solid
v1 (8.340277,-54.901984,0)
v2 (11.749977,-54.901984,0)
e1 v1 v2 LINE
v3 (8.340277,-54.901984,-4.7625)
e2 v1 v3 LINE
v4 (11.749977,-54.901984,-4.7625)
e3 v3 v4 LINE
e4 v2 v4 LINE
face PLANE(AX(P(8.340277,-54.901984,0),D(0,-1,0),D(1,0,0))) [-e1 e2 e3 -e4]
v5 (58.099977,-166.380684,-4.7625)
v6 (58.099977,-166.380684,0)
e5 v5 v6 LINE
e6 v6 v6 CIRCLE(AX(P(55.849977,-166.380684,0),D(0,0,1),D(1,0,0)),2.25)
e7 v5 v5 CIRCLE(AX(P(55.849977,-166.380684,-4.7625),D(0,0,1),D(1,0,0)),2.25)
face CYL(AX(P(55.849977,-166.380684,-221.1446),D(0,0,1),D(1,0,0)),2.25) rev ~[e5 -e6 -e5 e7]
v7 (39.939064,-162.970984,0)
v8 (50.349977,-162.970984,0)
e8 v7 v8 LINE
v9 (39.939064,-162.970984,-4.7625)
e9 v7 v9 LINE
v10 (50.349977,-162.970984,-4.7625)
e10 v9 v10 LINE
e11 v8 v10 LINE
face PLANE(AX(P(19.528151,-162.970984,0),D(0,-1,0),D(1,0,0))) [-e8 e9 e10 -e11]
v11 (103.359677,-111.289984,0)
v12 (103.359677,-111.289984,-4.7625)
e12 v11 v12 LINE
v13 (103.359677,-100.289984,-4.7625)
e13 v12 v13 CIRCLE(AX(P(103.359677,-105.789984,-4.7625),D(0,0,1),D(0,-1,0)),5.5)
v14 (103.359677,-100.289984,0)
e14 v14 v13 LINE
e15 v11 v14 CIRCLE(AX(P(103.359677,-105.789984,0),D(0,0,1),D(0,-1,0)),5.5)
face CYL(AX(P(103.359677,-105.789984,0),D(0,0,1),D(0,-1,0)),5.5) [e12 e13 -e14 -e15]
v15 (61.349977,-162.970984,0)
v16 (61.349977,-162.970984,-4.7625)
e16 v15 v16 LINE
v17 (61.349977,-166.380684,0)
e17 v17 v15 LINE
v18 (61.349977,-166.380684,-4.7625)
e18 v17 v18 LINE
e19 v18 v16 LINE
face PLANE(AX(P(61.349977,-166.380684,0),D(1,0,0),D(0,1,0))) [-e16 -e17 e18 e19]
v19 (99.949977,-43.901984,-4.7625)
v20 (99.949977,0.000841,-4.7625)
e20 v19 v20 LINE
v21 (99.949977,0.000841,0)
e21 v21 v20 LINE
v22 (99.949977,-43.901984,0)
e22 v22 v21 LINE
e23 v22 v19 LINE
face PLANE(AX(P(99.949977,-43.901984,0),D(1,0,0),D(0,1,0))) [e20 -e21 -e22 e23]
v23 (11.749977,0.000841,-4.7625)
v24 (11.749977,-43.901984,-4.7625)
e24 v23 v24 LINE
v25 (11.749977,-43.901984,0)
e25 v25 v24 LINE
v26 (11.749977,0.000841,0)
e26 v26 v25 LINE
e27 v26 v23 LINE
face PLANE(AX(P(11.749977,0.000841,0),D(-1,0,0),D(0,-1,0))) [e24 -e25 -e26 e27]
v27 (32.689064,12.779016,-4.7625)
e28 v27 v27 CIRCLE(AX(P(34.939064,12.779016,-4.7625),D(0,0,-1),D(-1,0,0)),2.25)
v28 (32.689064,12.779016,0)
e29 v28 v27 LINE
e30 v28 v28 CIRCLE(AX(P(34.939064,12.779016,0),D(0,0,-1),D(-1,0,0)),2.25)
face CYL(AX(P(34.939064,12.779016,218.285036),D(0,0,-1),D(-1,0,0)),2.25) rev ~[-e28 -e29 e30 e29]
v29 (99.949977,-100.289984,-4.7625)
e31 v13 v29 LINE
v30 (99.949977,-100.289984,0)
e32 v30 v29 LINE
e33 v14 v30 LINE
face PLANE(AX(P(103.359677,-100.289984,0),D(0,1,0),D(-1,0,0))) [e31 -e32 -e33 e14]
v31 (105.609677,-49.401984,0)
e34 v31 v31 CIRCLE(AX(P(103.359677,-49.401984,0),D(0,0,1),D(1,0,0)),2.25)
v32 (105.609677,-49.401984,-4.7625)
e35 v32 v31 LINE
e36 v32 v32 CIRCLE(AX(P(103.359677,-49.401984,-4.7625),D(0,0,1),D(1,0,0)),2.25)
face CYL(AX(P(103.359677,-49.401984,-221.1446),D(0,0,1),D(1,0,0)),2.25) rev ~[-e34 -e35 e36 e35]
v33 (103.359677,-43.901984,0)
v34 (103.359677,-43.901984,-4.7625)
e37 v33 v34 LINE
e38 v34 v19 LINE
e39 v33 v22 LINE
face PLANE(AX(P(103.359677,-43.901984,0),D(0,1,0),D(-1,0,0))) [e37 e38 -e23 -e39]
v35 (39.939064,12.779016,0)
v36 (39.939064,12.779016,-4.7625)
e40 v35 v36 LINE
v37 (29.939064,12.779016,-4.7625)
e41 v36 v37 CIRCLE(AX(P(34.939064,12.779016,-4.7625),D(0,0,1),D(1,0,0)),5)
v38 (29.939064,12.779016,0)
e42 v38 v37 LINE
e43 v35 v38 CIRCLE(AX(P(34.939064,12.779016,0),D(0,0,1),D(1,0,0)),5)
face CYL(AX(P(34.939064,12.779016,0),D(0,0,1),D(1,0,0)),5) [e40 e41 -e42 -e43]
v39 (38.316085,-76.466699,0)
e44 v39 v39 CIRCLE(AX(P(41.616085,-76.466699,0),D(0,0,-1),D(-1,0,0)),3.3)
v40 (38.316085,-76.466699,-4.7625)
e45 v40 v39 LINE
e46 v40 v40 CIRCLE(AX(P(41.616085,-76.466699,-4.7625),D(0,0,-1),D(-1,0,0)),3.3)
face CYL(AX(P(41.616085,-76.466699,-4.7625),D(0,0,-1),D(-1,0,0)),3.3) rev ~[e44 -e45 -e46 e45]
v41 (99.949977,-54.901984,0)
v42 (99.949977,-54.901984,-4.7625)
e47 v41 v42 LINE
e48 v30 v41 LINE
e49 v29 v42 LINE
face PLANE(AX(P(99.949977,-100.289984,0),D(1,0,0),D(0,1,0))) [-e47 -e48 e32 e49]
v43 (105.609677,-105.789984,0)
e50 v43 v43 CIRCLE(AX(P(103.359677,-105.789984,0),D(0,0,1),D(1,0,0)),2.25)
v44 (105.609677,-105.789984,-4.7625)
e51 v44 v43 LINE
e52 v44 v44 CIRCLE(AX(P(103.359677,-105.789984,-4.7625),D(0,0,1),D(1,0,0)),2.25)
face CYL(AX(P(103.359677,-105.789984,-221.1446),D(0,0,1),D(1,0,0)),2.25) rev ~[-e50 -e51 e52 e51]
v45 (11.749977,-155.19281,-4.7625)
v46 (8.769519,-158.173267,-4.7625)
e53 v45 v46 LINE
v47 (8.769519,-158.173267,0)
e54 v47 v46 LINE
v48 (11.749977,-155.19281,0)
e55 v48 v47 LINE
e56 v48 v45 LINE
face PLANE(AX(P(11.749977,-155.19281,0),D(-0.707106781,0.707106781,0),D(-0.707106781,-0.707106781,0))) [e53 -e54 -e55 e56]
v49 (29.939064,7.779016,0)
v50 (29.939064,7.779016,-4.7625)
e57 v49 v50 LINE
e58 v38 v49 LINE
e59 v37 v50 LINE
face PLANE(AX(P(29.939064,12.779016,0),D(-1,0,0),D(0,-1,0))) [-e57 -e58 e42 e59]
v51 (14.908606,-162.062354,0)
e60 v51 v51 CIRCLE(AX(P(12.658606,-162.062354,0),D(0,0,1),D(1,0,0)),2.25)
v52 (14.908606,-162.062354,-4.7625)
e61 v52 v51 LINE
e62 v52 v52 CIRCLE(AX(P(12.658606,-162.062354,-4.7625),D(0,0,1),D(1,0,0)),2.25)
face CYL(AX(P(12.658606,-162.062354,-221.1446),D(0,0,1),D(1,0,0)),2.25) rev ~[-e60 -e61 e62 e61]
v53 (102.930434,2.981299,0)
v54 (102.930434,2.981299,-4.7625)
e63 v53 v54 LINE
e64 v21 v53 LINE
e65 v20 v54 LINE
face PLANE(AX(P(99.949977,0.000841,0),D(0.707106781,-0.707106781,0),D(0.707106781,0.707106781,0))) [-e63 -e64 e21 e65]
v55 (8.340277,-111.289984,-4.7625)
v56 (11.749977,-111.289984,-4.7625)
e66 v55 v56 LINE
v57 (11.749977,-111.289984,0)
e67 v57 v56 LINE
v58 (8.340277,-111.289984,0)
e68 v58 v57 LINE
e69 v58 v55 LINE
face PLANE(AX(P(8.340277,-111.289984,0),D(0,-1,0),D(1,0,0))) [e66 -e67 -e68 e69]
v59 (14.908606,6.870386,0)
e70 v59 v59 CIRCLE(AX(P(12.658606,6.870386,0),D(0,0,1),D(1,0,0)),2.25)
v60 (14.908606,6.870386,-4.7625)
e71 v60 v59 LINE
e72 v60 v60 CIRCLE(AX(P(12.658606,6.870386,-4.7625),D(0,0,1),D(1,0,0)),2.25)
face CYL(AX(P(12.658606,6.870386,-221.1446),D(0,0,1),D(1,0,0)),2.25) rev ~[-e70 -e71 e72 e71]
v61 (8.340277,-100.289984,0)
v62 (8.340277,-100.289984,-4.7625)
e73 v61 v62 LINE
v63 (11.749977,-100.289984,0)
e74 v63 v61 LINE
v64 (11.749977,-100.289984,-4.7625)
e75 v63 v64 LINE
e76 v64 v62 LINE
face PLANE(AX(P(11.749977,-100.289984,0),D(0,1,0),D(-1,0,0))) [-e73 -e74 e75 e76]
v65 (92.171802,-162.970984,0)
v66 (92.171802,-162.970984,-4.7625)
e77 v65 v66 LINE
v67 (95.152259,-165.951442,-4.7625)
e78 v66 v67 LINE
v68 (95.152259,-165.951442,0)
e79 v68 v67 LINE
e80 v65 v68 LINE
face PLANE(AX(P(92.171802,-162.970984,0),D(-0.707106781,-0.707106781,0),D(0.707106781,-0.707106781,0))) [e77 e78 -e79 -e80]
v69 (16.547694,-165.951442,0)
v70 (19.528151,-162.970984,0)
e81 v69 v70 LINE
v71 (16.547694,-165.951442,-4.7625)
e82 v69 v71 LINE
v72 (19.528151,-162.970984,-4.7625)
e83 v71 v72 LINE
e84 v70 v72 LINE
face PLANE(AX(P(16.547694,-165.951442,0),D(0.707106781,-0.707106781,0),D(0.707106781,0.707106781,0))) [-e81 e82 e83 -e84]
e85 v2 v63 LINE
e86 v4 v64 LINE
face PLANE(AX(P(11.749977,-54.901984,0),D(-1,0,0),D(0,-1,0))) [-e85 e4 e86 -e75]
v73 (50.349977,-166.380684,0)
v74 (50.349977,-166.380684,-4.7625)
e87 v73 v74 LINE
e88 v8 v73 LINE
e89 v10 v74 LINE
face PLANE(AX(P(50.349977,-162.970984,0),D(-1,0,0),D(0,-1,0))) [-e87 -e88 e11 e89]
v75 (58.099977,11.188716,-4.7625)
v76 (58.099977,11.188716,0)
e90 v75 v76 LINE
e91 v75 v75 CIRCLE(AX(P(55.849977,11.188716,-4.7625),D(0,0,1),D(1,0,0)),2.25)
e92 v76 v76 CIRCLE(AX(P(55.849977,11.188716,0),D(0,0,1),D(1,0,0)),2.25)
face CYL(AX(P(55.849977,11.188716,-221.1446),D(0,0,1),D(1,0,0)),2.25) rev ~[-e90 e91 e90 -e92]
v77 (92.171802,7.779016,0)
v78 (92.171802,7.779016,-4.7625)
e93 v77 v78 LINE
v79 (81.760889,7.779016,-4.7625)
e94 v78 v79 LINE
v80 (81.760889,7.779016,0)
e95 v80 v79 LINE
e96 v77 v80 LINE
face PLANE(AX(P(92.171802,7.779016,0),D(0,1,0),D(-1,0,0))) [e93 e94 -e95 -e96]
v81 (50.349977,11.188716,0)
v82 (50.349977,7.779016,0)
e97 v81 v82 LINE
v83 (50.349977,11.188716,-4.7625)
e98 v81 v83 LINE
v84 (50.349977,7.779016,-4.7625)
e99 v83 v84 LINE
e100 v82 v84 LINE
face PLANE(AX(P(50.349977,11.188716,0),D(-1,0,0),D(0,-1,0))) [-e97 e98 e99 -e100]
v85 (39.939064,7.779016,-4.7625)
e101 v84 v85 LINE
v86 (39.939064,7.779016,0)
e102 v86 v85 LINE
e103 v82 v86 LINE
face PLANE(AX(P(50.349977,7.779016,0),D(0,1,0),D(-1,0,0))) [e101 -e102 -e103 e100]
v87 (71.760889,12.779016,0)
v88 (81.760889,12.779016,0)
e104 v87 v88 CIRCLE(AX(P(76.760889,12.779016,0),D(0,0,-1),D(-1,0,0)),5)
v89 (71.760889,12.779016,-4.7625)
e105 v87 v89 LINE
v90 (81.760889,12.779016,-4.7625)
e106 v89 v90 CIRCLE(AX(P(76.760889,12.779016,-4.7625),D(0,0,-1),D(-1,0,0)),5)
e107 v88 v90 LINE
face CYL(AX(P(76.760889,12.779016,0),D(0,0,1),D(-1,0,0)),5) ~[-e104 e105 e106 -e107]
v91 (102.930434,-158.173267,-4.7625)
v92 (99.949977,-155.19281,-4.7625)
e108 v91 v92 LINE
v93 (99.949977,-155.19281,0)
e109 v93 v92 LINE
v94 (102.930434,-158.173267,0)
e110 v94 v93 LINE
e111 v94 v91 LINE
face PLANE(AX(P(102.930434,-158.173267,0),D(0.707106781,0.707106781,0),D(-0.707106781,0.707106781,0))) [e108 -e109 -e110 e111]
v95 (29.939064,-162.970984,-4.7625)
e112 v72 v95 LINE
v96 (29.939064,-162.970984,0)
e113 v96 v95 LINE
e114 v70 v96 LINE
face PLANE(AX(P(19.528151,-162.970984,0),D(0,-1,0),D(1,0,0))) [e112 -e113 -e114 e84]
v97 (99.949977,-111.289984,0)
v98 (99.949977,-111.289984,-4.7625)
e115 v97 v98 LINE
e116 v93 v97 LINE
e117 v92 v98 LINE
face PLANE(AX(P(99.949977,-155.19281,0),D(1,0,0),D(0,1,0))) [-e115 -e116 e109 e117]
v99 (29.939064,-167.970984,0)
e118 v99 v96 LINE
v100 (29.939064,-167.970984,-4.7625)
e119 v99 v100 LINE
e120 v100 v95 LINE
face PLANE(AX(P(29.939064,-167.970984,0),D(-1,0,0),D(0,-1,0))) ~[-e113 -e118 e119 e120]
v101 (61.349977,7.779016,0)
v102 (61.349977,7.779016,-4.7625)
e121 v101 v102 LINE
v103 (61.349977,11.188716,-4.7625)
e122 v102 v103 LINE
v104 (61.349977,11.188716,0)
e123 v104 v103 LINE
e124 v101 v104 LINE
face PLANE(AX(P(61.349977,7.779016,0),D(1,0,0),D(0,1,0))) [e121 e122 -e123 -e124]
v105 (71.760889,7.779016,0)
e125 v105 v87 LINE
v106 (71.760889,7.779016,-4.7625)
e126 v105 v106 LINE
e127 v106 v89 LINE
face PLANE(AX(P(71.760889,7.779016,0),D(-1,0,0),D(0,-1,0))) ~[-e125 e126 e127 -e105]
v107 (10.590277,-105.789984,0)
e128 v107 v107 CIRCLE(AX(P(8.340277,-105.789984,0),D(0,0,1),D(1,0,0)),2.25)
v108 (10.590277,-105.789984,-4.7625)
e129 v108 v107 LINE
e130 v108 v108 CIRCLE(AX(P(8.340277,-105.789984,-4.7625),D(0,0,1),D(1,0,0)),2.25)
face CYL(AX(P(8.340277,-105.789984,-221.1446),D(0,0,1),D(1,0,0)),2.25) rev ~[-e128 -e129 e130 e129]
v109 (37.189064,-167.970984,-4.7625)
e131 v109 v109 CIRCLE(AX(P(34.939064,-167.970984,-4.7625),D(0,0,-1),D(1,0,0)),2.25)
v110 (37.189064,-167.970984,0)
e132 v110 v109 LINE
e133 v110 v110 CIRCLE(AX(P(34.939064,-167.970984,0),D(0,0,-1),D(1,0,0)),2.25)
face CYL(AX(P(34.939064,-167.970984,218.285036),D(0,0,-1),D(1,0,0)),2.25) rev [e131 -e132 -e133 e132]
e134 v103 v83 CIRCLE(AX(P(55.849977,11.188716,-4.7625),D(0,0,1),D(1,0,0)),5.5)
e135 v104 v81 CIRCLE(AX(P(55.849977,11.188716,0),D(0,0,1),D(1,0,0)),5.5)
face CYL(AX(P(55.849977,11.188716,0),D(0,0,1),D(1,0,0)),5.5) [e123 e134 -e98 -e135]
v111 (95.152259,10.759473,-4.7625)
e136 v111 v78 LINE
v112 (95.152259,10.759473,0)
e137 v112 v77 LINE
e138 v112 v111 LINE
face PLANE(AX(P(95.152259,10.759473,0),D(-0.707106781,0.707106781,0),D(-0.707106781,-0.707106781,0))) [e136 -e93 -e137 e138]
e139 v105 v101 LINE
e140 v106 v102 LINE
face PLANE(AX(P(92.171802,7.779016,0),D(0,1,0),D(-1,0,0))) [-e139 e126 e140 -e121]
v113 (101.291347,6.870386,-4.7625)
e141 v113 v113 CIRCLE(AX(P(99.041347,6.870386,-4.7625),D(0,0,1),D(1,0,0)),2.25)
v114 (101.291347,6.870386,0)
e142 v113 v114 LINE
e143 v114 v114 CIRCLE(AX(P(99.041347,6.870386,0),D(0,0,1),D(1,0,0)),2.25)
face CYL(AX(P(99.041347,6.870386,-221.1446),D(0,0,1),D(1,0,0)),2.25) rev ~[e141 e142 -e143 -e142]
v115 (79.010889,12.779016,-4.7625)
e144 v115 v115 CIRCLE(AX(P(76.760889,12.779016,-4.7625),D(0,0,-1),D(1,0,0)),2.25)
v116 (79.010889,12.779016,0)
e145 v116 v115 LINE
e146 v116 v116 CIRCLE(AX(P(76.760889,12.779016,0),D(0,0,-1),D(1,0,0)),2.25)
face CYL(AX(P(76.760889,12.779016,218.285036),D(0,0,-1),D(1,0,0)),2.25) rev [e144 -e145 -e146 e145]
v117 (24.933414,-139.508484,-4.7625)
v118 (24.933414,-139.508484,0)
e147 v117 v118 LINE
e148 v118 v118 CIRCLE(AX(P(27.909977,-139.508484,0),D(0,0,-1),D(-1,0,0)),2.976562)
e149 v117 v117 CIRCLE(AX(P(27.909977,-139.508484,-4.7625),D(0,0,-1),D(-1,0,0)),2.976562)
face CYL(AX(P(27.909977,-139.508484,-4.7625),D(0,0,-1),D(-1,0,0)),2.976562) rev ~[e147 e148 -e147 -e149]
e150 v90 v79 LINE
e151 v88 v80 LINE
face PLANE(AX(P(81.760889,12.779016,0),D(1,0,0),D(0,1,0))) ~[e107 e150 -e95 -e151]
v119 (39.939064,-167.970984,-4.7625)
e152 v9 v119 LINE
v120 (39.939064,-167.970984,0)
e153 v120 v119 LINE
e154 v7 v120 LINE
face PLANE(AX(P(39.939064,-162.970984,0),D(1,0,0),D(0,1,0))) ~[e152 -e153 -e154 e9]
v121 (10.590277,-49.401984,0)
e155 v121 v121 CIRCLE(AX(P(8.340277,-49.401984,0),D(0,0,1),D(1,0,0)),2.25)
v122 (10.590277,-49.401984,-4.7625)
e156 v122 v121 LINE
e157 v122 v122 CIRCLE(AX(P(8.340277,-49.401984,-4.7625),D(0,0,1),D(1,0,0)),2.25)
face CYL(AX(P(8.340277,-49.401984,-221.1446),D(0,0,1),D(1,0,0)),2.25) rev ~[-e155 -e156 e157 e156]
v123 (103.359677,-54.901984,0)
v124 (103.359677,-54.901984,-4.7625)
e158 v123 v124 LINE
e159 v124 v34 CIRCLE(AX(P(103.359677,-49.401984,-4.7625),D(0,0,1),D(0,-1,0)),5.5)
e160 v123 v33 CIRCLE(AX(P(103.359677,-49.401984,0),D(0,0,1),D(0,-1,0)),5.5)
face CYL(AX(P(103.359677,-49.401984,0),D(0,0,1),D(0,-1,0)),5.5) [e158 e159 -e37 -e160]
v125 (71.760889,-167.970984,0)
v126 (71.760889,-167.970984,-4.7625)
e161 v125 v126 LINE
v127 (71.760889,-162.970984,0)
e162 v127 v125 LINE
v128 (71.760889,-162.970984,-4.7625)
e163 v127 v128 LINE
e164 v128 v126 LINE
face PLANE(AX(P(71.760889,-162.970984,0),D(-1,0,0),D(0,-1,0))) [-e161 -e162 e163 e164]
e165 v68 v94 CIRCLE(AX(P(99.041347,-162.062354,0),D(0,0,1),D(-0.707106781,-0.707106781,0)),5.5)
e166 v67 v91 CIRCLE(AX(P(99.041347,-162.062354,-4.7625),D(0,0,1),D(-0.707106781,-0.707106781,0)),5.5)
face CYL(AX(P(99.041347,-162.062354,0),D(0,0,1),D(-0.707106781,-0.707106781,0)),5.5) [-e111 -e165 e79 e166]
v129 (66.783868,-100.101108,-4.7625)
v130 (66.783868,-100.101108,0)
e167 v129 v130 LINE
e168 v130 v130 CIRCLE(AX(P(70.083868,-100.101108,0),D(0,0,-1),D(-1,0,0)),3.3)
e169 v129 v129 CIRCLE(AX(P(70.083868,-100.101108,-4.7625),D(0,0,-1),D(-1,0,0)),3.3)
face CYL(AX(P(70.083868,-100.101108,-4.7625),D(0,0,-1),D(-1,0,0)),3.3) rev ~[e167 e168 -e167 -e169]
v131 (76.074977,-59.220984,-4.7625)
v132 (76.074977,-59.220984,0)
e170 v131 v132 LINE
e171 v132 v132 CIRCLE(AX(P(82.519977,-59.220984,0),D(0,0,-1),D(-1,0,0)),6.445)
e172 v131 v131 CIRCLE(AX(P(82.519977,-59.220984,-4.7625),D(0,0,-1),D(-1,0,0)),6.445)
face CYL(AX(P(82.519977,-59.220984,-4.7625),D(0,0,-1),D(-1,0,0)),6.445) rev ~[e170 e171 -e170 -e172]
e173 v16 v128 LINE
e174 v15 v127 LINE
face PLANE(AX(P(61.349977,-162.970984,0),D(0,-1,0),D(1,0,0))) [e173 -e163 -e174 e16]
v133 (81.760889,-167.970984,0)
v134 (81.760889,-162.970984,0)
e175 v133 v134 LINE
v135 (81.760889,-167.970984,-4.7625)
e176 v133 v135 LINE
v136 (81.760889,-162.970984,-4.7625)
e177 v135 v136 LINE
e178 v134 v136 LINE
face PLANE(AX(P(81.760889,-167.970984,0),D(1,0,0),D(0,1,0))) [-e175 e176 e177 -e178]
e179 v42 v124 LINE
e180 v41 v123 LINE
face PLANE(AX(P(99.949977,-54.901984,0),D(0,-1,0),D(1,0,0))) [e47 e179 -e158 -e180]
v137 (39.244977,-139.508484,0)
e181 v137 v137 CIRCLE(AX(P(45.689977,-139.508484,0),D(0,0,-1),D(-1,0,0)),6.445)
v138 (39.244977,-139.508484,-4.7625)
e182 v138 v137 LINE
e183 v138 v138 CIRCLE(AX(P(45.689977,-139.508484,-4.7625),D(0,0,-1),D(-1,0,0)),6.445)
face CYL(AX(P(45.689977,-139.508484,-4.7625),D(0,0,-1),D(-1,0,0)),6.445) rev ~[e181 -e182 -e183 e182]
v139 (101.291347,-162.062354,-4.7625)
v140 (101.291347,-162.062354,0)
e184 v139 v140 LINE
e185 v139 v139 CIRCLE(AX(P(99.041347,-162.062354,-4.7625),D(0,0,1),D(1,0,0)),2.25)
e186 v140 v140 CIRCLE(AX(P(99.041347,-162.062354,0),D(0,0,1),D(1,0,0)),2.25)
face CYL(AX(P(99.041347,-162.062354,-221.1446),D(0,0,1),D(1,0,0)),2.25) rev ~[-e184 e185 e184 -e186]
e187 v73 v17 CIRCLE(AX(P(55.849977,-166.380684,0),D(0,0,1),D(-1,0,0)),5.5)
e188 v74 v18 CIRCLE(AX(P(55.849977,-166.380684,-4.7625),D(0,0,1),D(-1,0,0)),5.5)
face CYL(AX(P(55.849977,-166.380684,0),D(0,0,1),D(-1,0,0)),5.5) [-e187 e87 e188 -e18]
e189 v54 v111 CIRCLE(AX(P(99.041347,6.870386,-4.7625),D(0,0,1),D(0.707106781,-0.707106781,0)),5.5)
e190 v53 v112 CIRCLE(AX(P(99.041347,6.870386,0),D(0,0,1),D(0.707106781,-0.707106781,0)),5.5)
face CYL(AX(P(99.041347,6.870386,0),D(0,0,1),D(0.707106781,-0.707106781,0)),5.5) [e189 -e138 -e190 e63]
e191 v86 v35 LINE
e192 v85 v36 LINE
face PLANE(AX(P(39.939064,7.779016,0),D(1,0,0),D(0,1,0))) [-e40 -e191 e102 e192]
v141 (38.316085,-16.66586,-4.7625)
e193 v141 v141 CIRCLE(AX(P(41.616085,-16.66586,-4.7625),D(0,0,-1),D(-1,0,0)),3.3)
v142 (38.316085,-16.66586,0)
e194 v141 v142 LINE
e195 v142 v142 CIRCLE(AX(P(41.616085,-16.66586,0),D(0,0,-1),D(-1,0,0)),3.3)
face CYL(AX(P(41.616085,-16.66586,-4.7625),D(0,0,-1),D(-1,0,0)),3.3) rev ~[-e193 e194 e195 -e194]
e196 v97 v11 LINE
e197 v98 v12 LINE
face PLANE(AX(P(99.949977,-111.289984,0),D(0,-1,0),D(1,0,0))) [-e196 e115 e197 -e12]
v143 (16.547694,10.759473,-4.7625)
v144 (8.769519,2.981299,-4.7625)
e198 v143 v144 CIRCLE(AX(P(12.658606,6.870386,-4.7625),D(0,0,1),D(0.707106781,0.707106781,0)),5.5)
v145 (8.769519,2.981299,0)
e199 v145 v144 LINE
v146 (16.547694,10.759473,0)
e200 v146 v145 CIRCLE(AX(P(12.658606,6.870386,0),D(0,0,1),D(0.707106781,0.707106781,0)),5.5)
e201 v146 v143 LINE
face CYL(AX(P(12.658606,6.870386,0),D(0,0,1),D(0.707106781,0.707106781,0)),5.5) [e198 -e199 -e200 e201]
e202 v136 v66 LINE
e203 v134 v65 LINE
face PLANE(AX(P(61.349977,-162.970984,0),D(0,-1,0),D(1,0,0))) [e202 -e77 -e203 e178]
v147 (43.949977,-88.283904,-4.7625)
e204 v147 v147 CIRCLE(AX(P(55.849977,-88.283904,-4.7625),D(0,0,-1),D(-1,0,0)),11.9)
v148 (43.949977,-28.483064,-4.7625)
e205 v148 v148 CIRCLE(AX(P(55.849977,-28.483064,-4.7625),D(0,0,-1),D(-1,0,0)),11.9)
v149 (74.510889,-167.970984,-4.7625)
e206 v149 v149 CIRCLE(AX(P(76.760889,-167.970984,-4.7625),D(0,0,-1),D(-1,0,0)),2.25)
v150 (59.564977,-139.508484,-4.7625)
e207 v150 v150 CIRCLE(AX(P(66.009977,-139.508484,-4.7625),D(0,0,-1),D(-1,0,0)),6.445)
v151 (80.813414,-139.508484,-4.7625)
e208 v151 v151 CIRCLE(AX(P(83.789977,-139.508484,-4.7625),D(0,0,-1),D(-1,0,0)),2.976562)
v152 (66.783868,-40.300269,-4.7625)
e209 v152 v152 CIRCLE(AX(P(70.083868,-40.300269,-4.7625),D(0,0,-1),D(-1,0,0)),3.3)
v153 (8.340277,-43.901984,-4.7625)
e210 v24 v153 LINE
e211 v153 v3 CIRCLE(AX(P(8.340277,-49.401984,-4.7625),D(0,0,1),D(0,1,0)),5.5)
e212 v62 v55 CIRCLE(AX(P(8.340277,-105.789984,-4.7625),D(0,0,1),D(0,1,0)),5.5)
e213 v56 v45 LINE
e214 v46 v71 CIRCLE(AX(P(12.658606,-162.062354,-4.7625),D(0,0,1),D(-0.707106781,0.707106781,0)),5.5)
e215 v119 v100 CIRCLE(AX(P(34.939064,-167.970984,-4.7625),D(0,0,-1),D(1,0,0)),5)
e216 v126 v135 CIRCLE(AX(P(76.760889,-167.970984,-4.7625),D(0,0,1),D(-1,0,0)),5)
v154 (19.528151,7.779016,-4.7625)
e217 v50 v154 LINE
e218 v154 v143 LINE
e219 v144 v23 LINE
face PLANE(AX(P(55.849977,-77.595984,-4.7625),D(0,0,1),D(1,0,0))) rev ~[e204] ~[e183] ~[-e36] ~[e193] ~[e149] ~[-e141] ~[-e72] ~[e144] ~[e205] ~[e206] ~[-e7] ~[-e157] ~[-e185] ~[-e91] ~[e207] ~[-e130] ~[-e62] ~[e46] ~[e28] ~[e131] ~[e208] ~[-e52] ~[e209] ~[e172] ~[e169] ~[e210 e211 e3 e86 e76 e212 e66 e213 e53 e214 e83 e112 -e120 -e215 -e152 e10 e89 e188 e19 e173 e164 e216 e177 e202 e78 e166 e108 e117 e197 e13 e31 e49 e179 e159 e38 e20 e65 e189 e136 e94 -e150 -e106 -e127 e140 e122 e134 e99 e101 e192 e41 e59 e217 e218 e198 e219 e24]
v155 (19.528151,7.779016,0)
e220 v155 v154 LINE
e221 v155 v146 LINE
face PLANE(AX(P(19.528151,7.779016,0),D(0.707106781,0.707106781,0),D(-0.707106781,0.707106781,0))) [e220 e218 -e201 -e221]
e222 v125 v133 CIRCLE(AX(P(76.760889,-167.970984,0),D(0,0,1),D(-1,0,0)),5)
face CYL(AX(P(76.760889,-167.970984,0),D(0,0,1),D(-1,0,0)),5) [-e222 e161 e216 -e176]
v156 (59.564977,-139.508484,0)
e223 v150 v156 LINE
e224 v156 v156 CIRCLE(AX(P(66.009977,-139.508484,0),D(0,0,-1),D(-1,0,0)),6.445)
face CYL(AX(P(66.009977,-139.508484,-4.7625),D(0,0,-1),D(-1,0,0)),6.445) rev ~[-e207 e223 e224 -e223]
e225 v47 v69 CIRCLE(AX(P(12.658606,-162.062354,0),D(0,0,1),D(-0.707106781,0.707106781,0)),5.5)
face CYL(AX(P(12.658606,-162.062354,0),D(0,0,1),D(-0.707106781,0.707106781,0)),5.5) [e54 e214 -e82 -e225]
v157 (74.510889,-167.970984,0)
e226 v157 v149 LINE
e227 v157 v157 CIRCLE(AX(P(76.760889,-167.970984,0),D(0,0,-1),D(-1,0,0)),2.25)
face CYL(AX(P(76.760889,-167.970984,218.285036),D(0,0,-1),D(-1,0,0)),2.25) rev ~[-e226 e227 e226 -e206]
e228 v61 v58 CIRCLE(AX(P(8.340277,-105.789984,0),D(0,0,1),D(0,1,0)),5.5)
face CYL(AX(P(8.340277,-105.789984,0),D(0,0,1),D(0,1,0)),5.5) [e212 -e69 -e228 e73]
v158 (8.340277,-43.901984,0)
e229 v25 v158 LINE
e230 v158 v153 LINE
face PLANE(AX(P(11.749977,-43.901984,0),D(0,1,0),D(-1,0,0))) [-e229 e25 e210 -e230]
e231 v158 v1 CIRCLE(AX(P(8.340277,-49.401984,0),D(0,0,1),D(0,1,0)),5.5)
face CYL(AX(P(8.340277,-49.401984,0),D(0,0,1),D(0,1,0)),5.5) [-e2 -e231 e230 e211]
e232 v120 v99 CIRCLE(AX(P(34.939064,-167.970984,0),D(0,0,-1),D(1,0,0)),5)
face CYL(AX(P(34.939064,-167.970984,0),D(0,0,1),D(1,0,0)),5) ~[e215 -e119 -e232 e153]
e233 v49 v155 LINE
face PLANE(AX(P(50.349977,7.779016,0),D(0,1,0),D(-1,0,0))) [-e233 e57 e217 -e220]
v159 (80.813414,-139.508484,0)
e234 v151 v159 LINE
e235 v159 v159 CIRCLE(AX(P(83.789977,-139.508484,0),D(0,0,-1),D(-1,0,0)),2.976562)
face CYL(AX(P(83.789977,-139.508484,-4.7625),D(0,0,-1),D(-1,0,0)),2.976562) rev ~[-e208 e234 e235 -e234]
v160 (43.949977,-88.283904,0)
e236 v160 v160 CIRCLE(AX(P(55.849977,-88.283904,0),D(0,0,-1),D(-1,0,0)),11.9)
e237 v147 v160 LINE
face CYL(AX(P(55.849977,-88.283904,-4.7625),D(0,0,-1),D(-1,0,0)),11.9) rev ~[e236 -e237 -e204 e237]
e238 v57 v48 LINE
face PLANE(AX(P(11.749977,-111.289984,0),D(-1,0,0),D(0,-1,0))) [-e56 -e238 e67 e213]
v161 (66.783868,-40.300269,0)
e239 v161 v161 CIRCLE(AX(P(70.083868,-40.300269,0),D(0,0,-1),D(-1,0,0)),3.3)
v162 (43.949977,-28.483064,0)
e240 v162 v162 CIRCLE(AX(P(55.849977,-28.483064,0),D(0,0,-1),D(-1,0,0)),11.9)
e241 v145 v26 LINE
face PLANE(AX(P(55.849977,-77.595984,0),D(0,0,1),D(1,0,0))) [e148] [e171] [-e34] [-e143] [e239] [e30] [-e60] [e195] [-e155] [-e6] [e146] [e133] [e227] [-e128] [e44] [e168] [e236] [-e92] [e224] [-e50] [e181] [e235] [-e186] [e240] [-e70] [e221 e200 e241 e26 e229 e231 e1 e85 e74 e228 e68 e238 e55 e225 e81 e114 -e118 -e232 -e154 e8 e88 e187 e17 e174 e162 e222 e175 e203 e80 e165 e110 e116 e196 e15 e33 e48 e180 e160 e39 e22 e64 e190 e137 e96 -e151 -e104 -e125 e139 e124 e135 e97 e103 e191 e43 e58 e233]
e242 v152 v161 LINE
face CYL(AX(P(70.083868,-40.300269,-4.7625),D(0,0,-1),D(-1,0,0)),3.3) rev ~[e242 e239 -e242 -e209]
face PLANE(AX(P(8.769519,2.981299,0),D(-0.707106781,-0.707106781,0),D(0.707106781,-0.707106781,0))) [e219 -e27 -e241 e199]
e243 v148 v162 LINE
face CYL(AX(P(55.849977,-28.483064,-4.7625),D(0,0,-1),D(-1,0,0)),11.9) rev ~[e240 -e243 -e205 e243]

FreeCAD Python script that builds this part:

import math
import FreeCAD as App
import Part
import Sketcher

doc = App.newDocument("Part")
body = doc.addObject("PartDesign::Body", "Body")

# Sketch on XY plane
sketch1 = body.newObject("Sketcher::SketchObject", "Sketch")
sketch1.AttachmentSupport = (doc.getObject("XY_Plane"), [""])
sketch1.MapMode = "FlatFace"
sketch1.addGeometry(Part.LineSegment(App.Vector(50.3, 7.8, 0), App.Vector(19.5, 7.8, 0)), False)
sketch1.addGeometry(Part.LineSegment(App.Vector(19.5, 7.8, 0), App.Vector(16.5, 10.8, 0)), False)
sketch1.addGeometry(Part.ArcOfCircle(Part.Circle(App.Vector(12.7, 6.9, 0), App.Vector(0, 0, 1), 5.5), math.radians(45), math.radians(225)), False)
sketch1.addGeometry(Part.LineSegment(App.Vector(8.8, 3, 0), App.Vector(11.7, 0, 0)), False)
sketch1.addGeometry(Part.LineSegment(App.Vector(11.7, 0, 0), App.Vector(11.7, -43.9, 0)), False)
sketch1.addGeometry(Part.LineSegment(App.Vector(11.7, -43.9, 0), App.Vector(8.3, -43.9, 0)), False)
sketch1.addGeometry(Part.ArcOfCircle(Part.Circle(App.Vector(8.3, -49.4, 0), App.Vector(0, 0, 1), 5.5), math.radians(90), math.radians(270)), False)
sketch1.addGeometry(Part.LineSegment(App.Vector(8.3, -54.9, 0), App.Vector(11.7, -54.9, 0)), False)
sketch1.addGeometry(Part.LineSegment(App.Vector(11.7, -54.9, 0), App.Vector(11.7, -100.3, 0)), False)
sketch1.addGeometry(Part.LineSegment(App.Vector(11.7, -100.3, 0), App.Vector(8.3, -100.3, 0)), False)
sketch1.addGeometry(Part.ArcOfCircle(Part.Circle(App.Vector(8.3, -105.8, 0), App.Vector(0, 0, 1), 5.5), math.radians(90), math.radians(270)), False)
sketch1.addGeometry(Part.LineSegment(App.Vector(8.3, -111.3, 0), App.Vector(11.7, -111.3, 0)), False)
sketch1.addGeometry(Part.LineSegment(App.Vector(11.7, -111.3, 0), App.Vector(11.7, -155.2, 0)), False)
sketch1.addGeometry(Part.LineSegment(App.Vector(11.7, -155.2, 0), App.Vector(8.8, -158.2, 0)), False)
sketch1.addGeometry(Part.ArcOfCircle(Part.Circle(App.Vector(12.7, -162.1, 0), App.Vector(0, 0, 1), 5.5), math.radians(135), math.radians(315)), False)
sketch1.addGeometry(Part.LineSegment(App.Vector(16.5, -166, 0), App.Vector(19.5, -163, 0)), False)
sketch1.addGeometry(Part.LineSegment(App.Vector(19.5, -163, 0), App.Vector(50.3, -163, 0)), False)
sketch1.addGeometry(Part.LineSegment(App.Vector(50.3, -163, 0), App.Vector(50.3, -166.4, 0)), False)
sketch1.addGeometry(Part.ArcOfCircle(Part.Circle(App.Vector(55.8, -166.4, 0), App.Vector(0, 0, 1), 5.5), math.radians(180), math.radians(360)), False)
sketch1.addGeometry(Part.LineSegment(App.Vector(61.3, -166.4, 0), App.Vector(61.3, -163, 0)), False)
sketch1.addGeometry(Part.LineSegment(App.Vector(61.3, -163, 0), App.Vector(92.2, -163, 0)), False)
sketch1.addGeometry(Part.LineSegment(App.Vector(92.2, -163, 0), App.Vector(95.2, -166, 0)), False)
sketch1.addGeometry(Part.ArcOfCircle(Part.Circle(App.Vector(99, -162.1, 0), App.Vector(0, 0, 1), 5.5), math.radians(-135), math.radians(45)), False)
sketch1.addGeometry(Part.LineSegment(App.Vector(102.9, -158.2, 0), App.Vector(99.9, -155.2, 0)), False)
sketch1.addGeometry(Part.LineSegment(App.Vector(99.9, -155.2, 0), App.Vector(99.9, -111.3, 0)), False)
sketch1.addGeometry(Part.LineSegment(App.Vector(99.9, -111.3, 0), App.Vector(103.4, -111.3, 0)), False)
sketch1.addGeometry(Part.ArcOfCircle(Part.Circle(App.Vector(103.4, -105.8, 0), App.Vector(0, 0, 1), 5.5), math.radians(-90), math.radians(90)), False)
sketch1.addGeometry(Part.LineSegment(App.Vector(103.4, -100.3, 0), App.Vector(99.9, -100.3, 0)), False)
sketch1.addGeometry(Part.LineSegment(App.Vector(99.9, -100.3, 0), App.Vector(99.9, -54.9, 0)), False)
sketch1.addGeometry(Part.LineSegment(App.Vector(99.9, -54.9, 0), App.Vector(103.4, -54.9, 0)), False)
sketch1.addGeometry(Part.ArcOfCircle(Part.Circle(App.Vector(103.4, -49.4, 0), App.Vector(0, 0, 1), 5.5), math.radians(-90), math.radians(90)), False)
sketch1.addGeometry(Part.LineSegment(App.Vector(103.4, -43.9, 0), App.Vector(99.9, -43.9, 0)), False)
sketch1.addGeometry(Part.LineSegment(App.Vector(99.9, -43.9, 0), App.Vector(99.9, 0, 0)), False)
sketch1.addGeometry(Part.LineSegment(App.Vector(99.9, 0, 0), App.Vector(102.9, 3, 0)), False)
sketch1.addGeometry(Part.ArcOfCircle(Part.Circle(App.Vector(99, 6.9, 0), App.Vector(0, 0, 1), 5.5), math.radians(-45), math.radians(135)), False)
sketch1.addGeometry(Part.LineSegment(App.Vector(95.2, 10.8, 0), App.Vector(92.2, 7.8, 0)), False)
sketch1.addGeometry(Part.LineSegment(App.Vector(92.2, 7.8, 0), App.Vector(61.3, 7.8, 0)), False)
sketch1.addGeometry(Part.LineSegment(App.Vector(61.3, 7.8, 0), App.Vector(61.3, 11.2, 0)), False)
sketch1.addGeometry(Part.ArcOfCircle(Part.Circle(App.Vector(55.8, 11.2, 0), App.Vector(0, 0, 1), 5.5), math.radians(0), math.radians(180)), False)
sketch1.addGeometry(Part.LineSegment(App.Vector(50.3, 11.2, 0), App.Vector(50.3, 7.8, 0)), False)
sketch1.addConstraint(Sketcher.Constraint("Coincident", 0, 2, 1, 1))
sketch1.addConstraint(Sketcher.Constraint("Tangent", 1, 2, 2, 1))
sketch1.addConstraint(Sketcher.Constraint("Tangent", 2, 2, 3, 1))
sketch1.addConstraint(Sketcher.Constraint("Coincident", 3, 2, 4, 1))
sketch1.addConstraint(Sketcher.Constraint("Coincident", 4, 2, 5, 1))
sketch1.addConstraint(Sketcher.Constraint("Tangent", 5, 2, 6, 1))
sketch1.addConstraint(Sketcher.Constraint("Tangent", 6, 2, 7, 1))
sketch1.addConstraint(Sketcher.Constraint("Coincident", 7, 2, 8, 1))
sketch1.addConstraint(Sketcher.Constraint("Coincident", 8, 2, 9, 1))
sketch1.addConstraint(Sketcher.Constraint("Tangent", 9, 2, 10, 1))
sketch1.addConstraint(Sketcher.Constraint("Tangent", 10, 2, 11, 1))
sketch1.addConstraint(Sketcher.Constraint("Coincident", 11, 2, 12, 1))
sketch1.addConstraint(Sketcher.Constraint("Coincident", 12, 2, 13, 1))
sketch1.addConstraint(Sketcher.Constraint("Tangent", 13, 2, 14, 1))
sketch1.addConstraint(Sketcher.Constraint("Tangent", 14, 2, 15, 1))
sketch1.addConstraint(Sketcher.Constraint("Coincident", 15, 2, 16, 1))
sketch1.addConstraint(Sketcher.Constraint("Coincident", 16, 2, 17, 1))
sketch1.addConstraint(Sketcher.Constraint("Tangent", 17, 2, 18, 1))
sketch1.addConstraint(Sketcher.Constraint("Tangent", 18, 2, 19, 1))
sketch1.addConstraint(Sketcher.Constraint("Coincident", 19, 2, 20, 1))
sketch1.addConstraint(Sketcher.Constraint("Coincident", 20, 2, 21, 1))
sketch1.addConstraint(Sketcher.Constraint("Tangent", 21, 2, 22, 1))
sketch1.addConstraint(Sketcher.Constraint("Tangent", 22, 2, 23, 1))
sketch1.addConstraint(Sketcher.Constraint("Coincident", 23, 2, 24, 1))
sketch1.addConstraint(Sketcher.Constraint("Coincident", 24, 2, 25, 1))
sketch1.addConstraint(Sketcher.Constraint("Tangent", 25, 2, 26, 1))
sketch1.addConstraint(Sketcher.Constraint("Tangent", 26, 2, 27, 1))
sketch1.addConstraint(Sketcher.Constraint("Coincident", 27, 2, 28, 1))
sketch1.addConstraint(Sketcher.Constraint("Coincident", 28, 2, 29, 1))
sketch1.addConstraint(Sketcher.Constraint("Tangent", 29, 2, 30, 1))
sketch1.addConstraint(Sketcher.Constraint("Tangent", 30, 2, 31, 1))
sketch1.addConstraint(Sketcher.Constraint("Coincident", 31, 2, 32, 1))
sketch1.addConstraint(Sketcher.Constraint("Coincident", 32, 2, 33, 1))
sketch1.addConstraint(Sketcher.Constraint("Tangent", 33, 2, 34, 1))
sketch1.addConstraint(Sketcher.Constraint("Tangent", 34, 2, 35, 1))
sketch1.addConstraint(Sketcher.Constraint("Coincident", 35, 2, 36, 1))
sketch1.addConstraint(Sketcher.Constraint("Coincident", 36, 2, 37, 1))
sketch1.addConstraint(Sketcher.Constraint("Tangent", 37, 2, 38, 1))
sketch1.addConstraint(Sketcher.Constraint("Tangent", 38, 2, 39, 1))
sketch1.addConstraint(Sketcher.Constraint("Coincident", 39, 2, 0, 1))
sketch1.addConstraint(Sketcher.Constraint("Horizontal", 0))
sketch1.addConstraint(Sketcher.Constraint("Vertical", 4))
sketch1.addConstraint(Sketcher.Constraint("Horizontal", 5))
sketch1.addConstraint(Sketcher.Constraint("Horizontal", 7))
sketch1.addConstraint(Sketcher.Constraint("Vertical", 8))
sketch1.addConstraint(Sketcher.Constraint("Horizontal", 9))
sketch1.addConstraint(Sketcher.Constraint("Horizontal", 11))
sketch1.addConstraint(Sketcher.Constraint("Vertical", 12))
sketch1.addConstraint(Sketcher.Constraint("Horizontal", 16))
sketch1.addConstraint(Sketcher.Constraint("Vertical", 17))
sketch1.addConstraint(Sketcher.Constraint("Vertical", 19))
sketch1.addConstraint(Sketcher.Constraint("Horizontal", 20))
sketch1.addConstraint(Sketcher.Constraint("Vertical", 24))
sketch1.addConstraint(Sketcher.Constraint("Horizontal", 25))
sketch1.addConstraint(Sketcher.Constraint("Horizontal", 27))
sketch1.addConstraint(Sketcher.Constraint("Vertical", 28))
sketch1.addConstraint(Sketcher.Constraint("Horizontal", 29))
sketch1.addConstraint(Sketcher.Constraint("Horizontal", 31))
sketch1.addConstraint(Sketcher.Constraint("Vertical", 32))
sketch1.addConstraint(Sketcher.Constraint("Horizontal", 36))
sketch1.addConstraint(Sketcher.Constraint("Vertical", 37))
sketch1.addConstraint(Sketcher.Constraint("Vertical", 39))
sketch1.addConstraint(Sketcher.Constraint("Equal", 2, 6))
sketch1.addConstraint(Sketcher.Constraint("Equal", 6, 10))
sketch1.addConstraint(Sketcher.Constraint("Equal", 10, 14))
sketch1.addConstraint(Sketcher.Constraint("Equal", 14, 18))
sketch1.addConstraint(Sketcher.Constraint("Equal", 18, 22))
sketch1.addConstraint(Sketcher.Constraint("Equal", 22, 26))
sketch1.addConstraint(Sketcher.Constraint("Equal", 26, 30))
sketch1.addConstraint(Sketcher.Constraint("Equal", 30, 34))
sketch1.addConstraint(Sketcher.Constraint("Equal", 34, 38))
sketch1.addConstraint(Sketcher.Constraint("Parallel", 1, 3))
sketch1.addConstraint(Sketcher.Constraint("Perpendicular", 3, 13))
sketch1.addConstraint(Sketcher.Constraint("Parallel", 13, 15))
sketch1.addConstraint(Sketcher.Constraint("Perpendicular", 15, 21))
sketch1.addConstraint(Sketcher.Constraint("Parallel", 21, 23))
sketch1.addConstraint(Sketcher.Constraint("Perpendicular", 23, 33))
sketch1.addConstraint(Sketcher.Constraint("Parallel", 33, 35))
sketch1.addConstraint(Sketcher.Constraint("Horizontal", 14, 3, 22, 3))
sketch1.addConstraint(Sketcher.Constraint("Horizontal", 10, 3, 26, 3))
sketch1.addConstraint(Sketcher.Constraint("Horizontal", 6, 3, 30, 3))
sketch1.addConstraint(Sketcher.Constraint("Horizontal", 2, 3, 34, 3))
sketch1.addConstraint(Sketcher.Constraint("Horizontal", 16, 2, 19, 2))
sketch1.addConstraint(Sketcher.Constraint("Horizontal", 14, 2, 21, 2))
sketch1.addConstraint(Sketcher.Constraint("Horizontal", 12, 2, 23, 2))
sketch1.addConstraint(Sketcher.Constraint("Horizontal", 3, 2, 32, 2))
sketch1.addConstraint(Sketcher.Constraint("Horizontal", 0, 2, 35, 2))
sketch1.addConstraint(Sketcher.Constraint("Vertical", 6, 3, 10, 3))
sketch1.addConstraint(Sketcher.Constraint("Vertical", 2, 3, 14, 3))
sketch1.addConstraint(Sketcher.Constraint("Vertical", 26, 3, 30, 3))
sketch1.addConstraint(Sketcher.Constraint("Vertical", 22, 3, 34, 3))
sketch1.addConstraint(Sketcher.Constraint("Vertical", 18, 3, 38, 3))
sketch1.addConstraint(Sketcher.Constraint("Vertical", 4, 2, 7, 2))
sketch1.addConstraint(Sketcher.Constraint("Vertical", 8, 2, 11, 2))
sketch1.addConstraint(Sketcher.Constraint("Vertical", 0, 2, 15, 2))
sketch1.addConstraint(Sketcher.Constraint("Vertical", 24, 2, 27, 2))
sketch1.addConstraint(Sketcher.Constraint("Equal", 16, 20))
sketch1.addConstraint(Sketcher.Constraint("Equal", 11, 25))
sketch1.addConstraint(Sketcher.Constraint("Equal", 4, 12))
sketch1.addConstraint(Sketcher.Constraint("Equal", 31, 17))
sketch1.addConstraint(Sketcher.Constraint("Equal", 19, 37))
sketch1.addConstraint(Sketcher.Constraint("Equal", 1, 3))
sketch1.addConstraint(Sketcher.Constraint("Radius", 2, 5.5))
sketch1.addConstraint(Sketcher.Constraint("DistanceX", 3, 2, 38, 3, 44.1))
sketch1.addConstraint(Sketcher.Constraint("DistanceY", 8, 2, 8, 1, 45.388))
sketch1.addConstraint(Sketcher.Constraint("DistanceX", 5, 2, 5, 1, 3.4097))
sketch1.addConstraint(Sketcher.Constraint("DistanceY", 6, 3, 0, 2, 57.181))
sketch1.addConstraint(Sketcher.Constraint("DistanceY", -1, 1, 2, 2, 2.981299))
sketch1.addConstraint(Sketcher.Constraint("DistanceX", -1, 1, 20, 2, 92.171802))
sketch1.addConstraint(Sketcher.Constraint("DistanceX", -1, 1, 2, 2, 8.769519))
pad1 = body.newObject("PartDesign::Pad", "Pad")
pad1.Profile = sketch1
pad1.Length = 4.7625
pad1.Reversed = True

# Sketch on XY plane
sketch2 = body.newObject("Sketcher::SketchObject", "Sketch001")
sketch2.AttachmentSupport = (doc.getObject("XY_Plane"), [""])
sketch2.MapMode = "FlatFace"
sketch2.AttachmentOffset = App.Placement(App.Vector(0, 0, -4.7625), App.Rotation())
sketch2.addGeometry(Part.Circle(App.Vector(12.7, -162.1, 0), App.Vector(0, 0, 1), 2.2), False)
sketch2.addGeometry(Part.Circle(App.Vector(55.8, -166.4, 0), App.Vector(0, 0, 1), 2.2), False)
sketch2.addGeometry(Part.Circle(App.Vector(99, -162.1, 0), App.Vector(0, 0, 1), 2.2), False)
sketch2.addGeometry(Part.Circle(App.Vector(103.4, -105.8, 0), App.Vector(0, 0, 1), 2.2), False)
sketch2.addGeometry(Part.Circle(App.Vector(103.4, -49.4, 0), App.Vector(0, 0, 1), 2.2), False)
sketch2.addGeometry(Part.Circle(App.Vector(99, 6.9, 0), App.Vector(0, 0, 1), 2.2), False)
sketch2.addGeometry(Part.Circle(App.Vector(12.7, 6.9, 0), App.Vector(0, 0, 1), 2.2), False)
sketch2.addGeometry(Part.Circle(App.Vector(8.3, -49.4, 0), App.Vector(0, 0, 1), 2.2), False)
sketch2.addGeometry(Part.Circle(App.Vector(8.3, -105.8, 0), App.Vector(0, 0, 1), 2.2), False)
sketch2.addGeometry(Part.Circle(App.Vector(55.8, 11.2, 0), App.Vector(0, 0, 1), 2.2), False)
sketch2.addConstraint(Sketcher.Constraint("Equal", 0, 1))
sketch2.addConstraint(Sketcher.Constraint("Equal", 1, 2))
sketch2.addConstraint(Sketcher.Constraint("Equal", 2, 3))
sketch2.addConstraint(Sketcher.Constraint("Equal", 3, 4))
sketch2.addConstraint(Sketcher.Constraint("Equal", 4, 5))
sketch2.addConstraint(Sketcher.Constraint("Equal", 5, 6))
sketch2.addConstraint(Sketcher.Constraint("Equal", 6, 7))
sketch2.addConstraint(Sketcher.Constraint("Equal", 7, 8))
sketch2.addConstraint(Sketcher.Constraint("Equal", 8, 9))
sketch2.addConstraint(Sketcher.Constraint("Horizontal", 0, 3, 2, 3))
sketch2.addConstraint(Sketcher.Constraint("Horizontal", 5, 3, 6, 3))
sketch2.addConstraint(Sketcher.Constraint("Horizontal", 4, 3, 7, 3))
sketch2.addConstraint(Sketcher.Constraint("Horizontal", 3, 3, 8, 3))
sketch2.addConstraint(Sketcher.Constraint("Vertical", 3, 3, 4, 3))
sketch2.addConstraint(Sketcher.Constraint("Vertical", 2, 3, 5, 3))
sketch2.addConstraint(Sketcher.Constraint("Vertical", 0, 3, 6, 3))
sketch2.addConstraint(Sketcher.Constraint("Vertical", 7, 3, 8, 3))
sketch2.addConstraint(Sketcher.Constraint("Vertical", 1, 3, 9, 3))
sketch2.addConstraint(Sketcher.Constraint("Diameter", 0, 4.5))
sketch2.addConstraint(Sketcher.Constraint("DistanceY", 3, 3, 4, 3, 56.388))
sketch2.addConstraint(Sketcher.Constraint("DistanceX", 1, 3, 3, 3, 47.5097))
sketch2.addConstraint(Sketcher.Constraint("DistanceY", 1, 3, 3, 3, 60.5907))
sketch2.addConstraint(Sketcher.Constraint("DistanceX", 7, 3, 4, 3, 95.0194))
sketch2.addConstraint(Sketcher.Constraint("DistanceY", 4, 3, 9, 3, 60.5907))
sketch2.addConstraint(Sketcher.Constraint("DistanceX", 0, 3, 1, 3, 43.19137))
sketch2.addConstraint(Sketcher.Constraint("DistanceY", 1, 3, 0, 3, 4.31833))
sketch2.addConstraint(Sketcher.Constraint("DistanceX", 1, 3, 2, 3, 43.19137))
sketch2.addConstraint(Sketcher.Constraint("DistanceY", 4, 3, 5, 3, 56.27237))
sketch2.addConstraint(Sketcher.Constraint("DistanceX", -1, 1, 0, 3, 12.658606))
sketch2.addConstraint(Sketcher.Constraint("DistanceY", 0, 3, -1, 1, 162.062354))
doc.recompute()
hole = body.newObject("PartDesign::Hole", "Hole")
hole.Profile = sketch2
hole.ThreadType = "None"
hole.Diameter = 4.5
hole.DepthType = "ThroughAll"
hole.Reversed = True

# Sketch on XY plane
sketch3 = body.newObject("Sketcher::SketchObject", "Sketch002")
sketch3.AttachmentSupport = (doc.getObject("XY_Plane"), [""])
sketch3.MapMode = "FlatFace"
sketch3.AttachmentOffset = App.Placement(App.Vector(0, 0, -4.7625), App.Rotation())
sketch3.addGeometry(Part.Circle(App.Vector(41.6, -16.7, 0), App.Vector(0, 0, 1), 3.3), False)
sketch3.addGeometry(Part.Circle(App.Vector(70.1, -40.3, 0), App.Vector(0, 0, 1), 3.3), False)
sketch3.addGeometry(Part.Circle(App.Vector(27.9, -139.5, 0), App.Vector(0, 0, 1), 3), False)
sketch3.addGeometry(Part.Circle(App.Vector(41.6, -76.5, 0), App.Vector(0, 0, 1), 3.3), False)
sketch3.addGeometry(Part.Circle(App.Vector(83.8, -139.5, 0), App.Vector(0, 0, 1), 3), False)
sketch3.addGeometry(Part.Circle(App.Vector(70.1, -100.1, 0), App.Vector(0, 0, 1), 3.3), False)
sketch3.addGeometry(Part.Circle(App.Vector(66, -139.5, 0), App.Vector(0, 0, 1), 6.4), False)
sketch3.addGeometry(Part.Circle(App.Vector(82.5, -59.2, 0), App.Vector(0, 0, 1), 6.4), False)
sketch3.addGeometry(Part.Circle(App.Vector(45.7, -139.5, 0), App.Vector(0, 0, 1), 6.4), False)
sketch3.addGeometry(Part.Circle(App.Vector(55.8, -88.3, 0), App.Vector(0, 0, 1), 11.9), False)
sketch3.addGeometry(Part.Circle(App.Vector(55.8, -28.5, 0), App.Vector(0, 0, 1), 11.9), False)
sketch3.addConstraint(Sketcher.Constraint("Equal", 0, 1))
sketch3.addConstraint(Sketcher.Constraint("Equal", 1, 3))
sketch3.addConstraint(Sketcher.Constraint("Equal", 2, 4))
sketch3.addConstraint(Sketcher.Constraint("Equal", 3, 5))
sketch3.addConstraint(Sketcher.Constraint("Equal", 6, 7))
sketch3.addConstraint(Sketcher.Constraint("Equal", 7, 8))
sketch3.addConstraint(Sketcher.Constraint("Equal", 9, 10))
sketch3.addConstraint(Sketcher.Constraint("Horizontal", 2, 3, 4, 3))
sketch3.addConstraint(Sketcher.Constraint("Horizontal", 4, 3, 6, 3))
sketch3.addConstraint(Sketcher.Constraint("Horizontal", 6, 3, 8, 3))
sketch3.addConstraint(Sketcher.Constraint("Vertical", 0, 3, 3, 3))
sketch3.addConstraint(Sketcher.Constraint("Vertical", 1, 3, 5, 3))
sketch3.addConstraint(Sketcher.Constraint("Vertical", 9, 3, 10, 3))
sketch3.addConstraint(Sketcher.Constraint("Diameter", 0, 6.6))
sketch3.addConstraint(Sketcher.Constraint("Diameter", 9, 23.8))
sketch3.addConstraint(Sketcher.Constraint("Diameter", 6, 12.89))
sketch3.addConstraint(Sketcher.Constraint("DistanceX", 2, 3, 6, 3, 38.1))
sketch3.addConstraint(Sketcher.Constraint("DistanceX", 8, 3, 4, 3, 38.1))
sketch3.addConstraint(Sketcher.Constraint("DistanceX", 2, 3, 4, 3, 55.88))
sketch3.addConstraint(Sketcher.Constraint("DistanceX", 7, 3, 4, 3, 1.27))
sketch3.addConstraint(Sketcher.Constraint("DistanceX", 9, 3, 7, 3, 26.67))
sketch3.addConstraint(Sketcher.Constraint("Diameter", 2, 5.953125))
sketch3.addConstraint(Sketcher.Constraint("DistanceY", 3, 3, -1, 1, 76.466699))
sketch3.addConstraint(Sketcher.Constraint("DistanceY", 4, 3, 7, 3, 80.2875))
sketch3.addConstraint(Sketcher.Constraint("DistanceY", 0, 3, -1, 1, 16.66586))
sketch3.addConstraint(Sketcher.Constraint("DistanceX", -1, 1, 1, 3, 70.083868))
sketch3.addConstraint(Sketcher.Constraint("DistanceY", 1, 3, -1, 1, 40.300269))
sketch3.addConstraint(Sketcher.Constraint("DistanceY", 5, 3, -1, 1, 100.101108))
sketch3.addConstraint(Sketcher.Constraint("DistanceX", 2, 3, 1, 3, 42.173892))
sketch3.addConstraint(Sketcher.Constraint("DistanceX", 2, 3, 0, 3, 13.706108))
sketch3.addConstraint(Sketcher.Constraint("DistanceY", 9, 3, 7, 3, 29.06292))
sketch3.addConstraint(Sketcher.Constraint("DistanceY", 7, 3, 10, 3, 30.73792))
sketch3.addConstraint(Sketcher.Constraint("DistanceY", 2, 3, -1, 1, 139.508484))
pocket1 = body.newObject("PartDesign::Pocket", "Pocket")
pocket1.Profile = sketch3
pocket1.Length = 4.7625
pocket1.Reversed = True

# Sketch on XY plane
sketch4 = body.newObject("Sketcher::SketchObject", "Sketch003")
sketch4.AttachmentSupport = (doc.getObject("XY_Plane"), [""])
sketch4.MapMode = "FlatFace"
sketch4.addGeometry(Part.LineSegment(App.Vector(39.9, 7.8, 0), App.Vector(39.9, 12.8, 0)), False)
sketch4.addGeometry(Part.ArcOfCircle(Part.Circle(App.Vector(34.9, 12.8, 0), App.Vector(0, 0, 1), 5), math.radians(0), math.radians(180)), False)
sketch4.addGeometry(Part.LineSegment(App.Vector(29.9, 12.8, 0), App.Vector(29.9, 7.8, 0)), False)
sketch4.addGeometry(Part.LineSegment(App.Vector(29.9, 7.8, 0), App.Vector(39.9, 7.8, 0)), False)
sketch4.addGeometry(Part.LineSegment(App.Vector(81.8, -163, 0), App.Vector(71.8, -163, 0)), False)
sketch4.addGeometry(Part.LineSegment(App.Vector(71.8, -163, 0), App.Vector(71.8, -168, 0)), False)
sketch4.addGeometry(Part.ArcOfCircle(Part.Circle(App.Vector(76.8, -168, 0), App.Vector(0, 0, 1), 5), math.radians(180), math.radians(360)), False)
sketch4.addGeometry(Part.LineSegment(App.Vector(81.8, -168, 0), App.Vector(81.8, -163, 0)), False)
sketch4.addConstraint(Sketcher.Constraint("Tangent", 0, 2, 1, 1))
sketch4.addConstraint(Sketcher.Constraint("Tangent", 1, 2, 2, 1))
sketch4.addConstraint(Sketcher.Constraint("Coincident", 2, 2, 3, 1))
sketch4.addConstraint(Sketcher.Constraint("Coincident", 3, 2, 0, 1))
sketch4.addConstraint(Sketcher.Constraint("Coincident", 4, 2, 5, 1))
sketch4.addConstraint(Sketcher.Constraint("Tangent", 5, 2, 6, 1))
sketch4.addConstraint(Sketcher.Constraint("Tangent", 6, 2, 7, 1))
sketch4.addConstraint(Sketcher.Constraint("Coincident", 7, 2, 4, 1))
sketch4.addConstraint(Sketcher.Constraint("Vertical", 0))
sketch4.addConstraint(Sketcher.Constraint("Vertical", 2))
sketch4.addConstraint(Sketcher.Constraint("Horizontal", 3))
sketch4.addConstraint(Sketcher.Constraint("Horizontal", 4))
sketch4.addConstraint(Sketcher.Constraint("Vertical", 5))
sketch4.addConstraint(Sketcher.Constraint("Vertical", 7))
sketch4.addConstraint(Sketcher.Constraint("Equal", 1, 6))
sketch4.addConstraint(Sketcher.Constraint("Equal", 2, 5))
sketch4.addConstraint(Sketcher.Constraint("Radius", 1, 5.0))
sketch4.addConstraint(Sketcher.Constraint("DistanceY", 0, 1, 0, 2, 5.0))
sketch4.addConstraint(Sketcher.Constraint("DistanceY", 6, 3, 1, 3, 180.75))
sketch4.addConstraint(Sketcher.Constraint("DistanceX", -1, 1, 6, 3, 76.760889))
sketch4.addConstraint(Sketcher.Constraint("DistanceX", -1, 1, 1, 3, 34.939064))
sketch4.addConstraint(Sketcher.Constraint("DistanceY", -1, 1, 1, 3, 12.779016))
pad2 = body.newObject("PartDesign::Pad", "Pad001")
pad2.Profile = sketch4
pad2.Length = 4.7625
pad2.Reversed = True

# Sketch on XY plane
sketch5 = body.newObject("Sketcher::SketchObject", "Sketch004")
sketch5.AttachmentSupport = (doc.getObject("XY_Plane"), [""])
sketch5.MapMode = "FlatFace"
sketch5.addGeometry(Part.Circle(App.Vector(34.9, 12.8, 0), App.Vector(0, 0, 1), 2.2), False)
sketch5.addGeometry(Part.Circle(App.Vector(76.8, -168, 0), App.Vector(0, 0, 1), 2.2), False)
sketch5.addConstraint(Sketcher.Constraint("Equal", 0, 1))
sketch5.addConstraint(Sketcher.Constraint("Diameter", 0, 4.5))
sketch5.addConstraint(Sketcher.Constraint("DistanceY", 1, 3, 0, 3, 180.75))
sketch5.addConstraint(Sketcher.Constraint("DistanceX", -1, 1, 1, 3, 76.760889))
sketch5.addConstraint(Sketcher.Constraint("DistanceX", -1, 1, 0, 3, 34.939064))
sketch5.addConstraint(Sketcher.Constraint("DistanceY", -1, 1, 0, 3, 12.779016))
doc.recompute()
hole2 = body.newObject("PartDesign::Hole", "Hole001")
hole2.Profile = sketch5
hole2.ThreadType = "None"
hole2.Diameter = 4.5
hole2.DepthType = "ThroughAll"
doc.recompute()

datumplane = body.newObject("PartDesign::Plane", "DatumPlane")
datumplane.AttachmentSupport = (doc.getObject("YZ_Plane"), [""])
datumplane.MapMode = "FlatFace"
datumplane.AttachmentOffset = App.Placement(App.Vector(0, 0, 55.849977), App.Rotation())
mirrored = body.newObject("PartDesign::Mirrored", "Mirrored")
mirrored.Originals = [pad2, hole2]
mirrored.MirrorPlane = (datumplane, [""])
body.Tip = mirrored

doc.recompute()
